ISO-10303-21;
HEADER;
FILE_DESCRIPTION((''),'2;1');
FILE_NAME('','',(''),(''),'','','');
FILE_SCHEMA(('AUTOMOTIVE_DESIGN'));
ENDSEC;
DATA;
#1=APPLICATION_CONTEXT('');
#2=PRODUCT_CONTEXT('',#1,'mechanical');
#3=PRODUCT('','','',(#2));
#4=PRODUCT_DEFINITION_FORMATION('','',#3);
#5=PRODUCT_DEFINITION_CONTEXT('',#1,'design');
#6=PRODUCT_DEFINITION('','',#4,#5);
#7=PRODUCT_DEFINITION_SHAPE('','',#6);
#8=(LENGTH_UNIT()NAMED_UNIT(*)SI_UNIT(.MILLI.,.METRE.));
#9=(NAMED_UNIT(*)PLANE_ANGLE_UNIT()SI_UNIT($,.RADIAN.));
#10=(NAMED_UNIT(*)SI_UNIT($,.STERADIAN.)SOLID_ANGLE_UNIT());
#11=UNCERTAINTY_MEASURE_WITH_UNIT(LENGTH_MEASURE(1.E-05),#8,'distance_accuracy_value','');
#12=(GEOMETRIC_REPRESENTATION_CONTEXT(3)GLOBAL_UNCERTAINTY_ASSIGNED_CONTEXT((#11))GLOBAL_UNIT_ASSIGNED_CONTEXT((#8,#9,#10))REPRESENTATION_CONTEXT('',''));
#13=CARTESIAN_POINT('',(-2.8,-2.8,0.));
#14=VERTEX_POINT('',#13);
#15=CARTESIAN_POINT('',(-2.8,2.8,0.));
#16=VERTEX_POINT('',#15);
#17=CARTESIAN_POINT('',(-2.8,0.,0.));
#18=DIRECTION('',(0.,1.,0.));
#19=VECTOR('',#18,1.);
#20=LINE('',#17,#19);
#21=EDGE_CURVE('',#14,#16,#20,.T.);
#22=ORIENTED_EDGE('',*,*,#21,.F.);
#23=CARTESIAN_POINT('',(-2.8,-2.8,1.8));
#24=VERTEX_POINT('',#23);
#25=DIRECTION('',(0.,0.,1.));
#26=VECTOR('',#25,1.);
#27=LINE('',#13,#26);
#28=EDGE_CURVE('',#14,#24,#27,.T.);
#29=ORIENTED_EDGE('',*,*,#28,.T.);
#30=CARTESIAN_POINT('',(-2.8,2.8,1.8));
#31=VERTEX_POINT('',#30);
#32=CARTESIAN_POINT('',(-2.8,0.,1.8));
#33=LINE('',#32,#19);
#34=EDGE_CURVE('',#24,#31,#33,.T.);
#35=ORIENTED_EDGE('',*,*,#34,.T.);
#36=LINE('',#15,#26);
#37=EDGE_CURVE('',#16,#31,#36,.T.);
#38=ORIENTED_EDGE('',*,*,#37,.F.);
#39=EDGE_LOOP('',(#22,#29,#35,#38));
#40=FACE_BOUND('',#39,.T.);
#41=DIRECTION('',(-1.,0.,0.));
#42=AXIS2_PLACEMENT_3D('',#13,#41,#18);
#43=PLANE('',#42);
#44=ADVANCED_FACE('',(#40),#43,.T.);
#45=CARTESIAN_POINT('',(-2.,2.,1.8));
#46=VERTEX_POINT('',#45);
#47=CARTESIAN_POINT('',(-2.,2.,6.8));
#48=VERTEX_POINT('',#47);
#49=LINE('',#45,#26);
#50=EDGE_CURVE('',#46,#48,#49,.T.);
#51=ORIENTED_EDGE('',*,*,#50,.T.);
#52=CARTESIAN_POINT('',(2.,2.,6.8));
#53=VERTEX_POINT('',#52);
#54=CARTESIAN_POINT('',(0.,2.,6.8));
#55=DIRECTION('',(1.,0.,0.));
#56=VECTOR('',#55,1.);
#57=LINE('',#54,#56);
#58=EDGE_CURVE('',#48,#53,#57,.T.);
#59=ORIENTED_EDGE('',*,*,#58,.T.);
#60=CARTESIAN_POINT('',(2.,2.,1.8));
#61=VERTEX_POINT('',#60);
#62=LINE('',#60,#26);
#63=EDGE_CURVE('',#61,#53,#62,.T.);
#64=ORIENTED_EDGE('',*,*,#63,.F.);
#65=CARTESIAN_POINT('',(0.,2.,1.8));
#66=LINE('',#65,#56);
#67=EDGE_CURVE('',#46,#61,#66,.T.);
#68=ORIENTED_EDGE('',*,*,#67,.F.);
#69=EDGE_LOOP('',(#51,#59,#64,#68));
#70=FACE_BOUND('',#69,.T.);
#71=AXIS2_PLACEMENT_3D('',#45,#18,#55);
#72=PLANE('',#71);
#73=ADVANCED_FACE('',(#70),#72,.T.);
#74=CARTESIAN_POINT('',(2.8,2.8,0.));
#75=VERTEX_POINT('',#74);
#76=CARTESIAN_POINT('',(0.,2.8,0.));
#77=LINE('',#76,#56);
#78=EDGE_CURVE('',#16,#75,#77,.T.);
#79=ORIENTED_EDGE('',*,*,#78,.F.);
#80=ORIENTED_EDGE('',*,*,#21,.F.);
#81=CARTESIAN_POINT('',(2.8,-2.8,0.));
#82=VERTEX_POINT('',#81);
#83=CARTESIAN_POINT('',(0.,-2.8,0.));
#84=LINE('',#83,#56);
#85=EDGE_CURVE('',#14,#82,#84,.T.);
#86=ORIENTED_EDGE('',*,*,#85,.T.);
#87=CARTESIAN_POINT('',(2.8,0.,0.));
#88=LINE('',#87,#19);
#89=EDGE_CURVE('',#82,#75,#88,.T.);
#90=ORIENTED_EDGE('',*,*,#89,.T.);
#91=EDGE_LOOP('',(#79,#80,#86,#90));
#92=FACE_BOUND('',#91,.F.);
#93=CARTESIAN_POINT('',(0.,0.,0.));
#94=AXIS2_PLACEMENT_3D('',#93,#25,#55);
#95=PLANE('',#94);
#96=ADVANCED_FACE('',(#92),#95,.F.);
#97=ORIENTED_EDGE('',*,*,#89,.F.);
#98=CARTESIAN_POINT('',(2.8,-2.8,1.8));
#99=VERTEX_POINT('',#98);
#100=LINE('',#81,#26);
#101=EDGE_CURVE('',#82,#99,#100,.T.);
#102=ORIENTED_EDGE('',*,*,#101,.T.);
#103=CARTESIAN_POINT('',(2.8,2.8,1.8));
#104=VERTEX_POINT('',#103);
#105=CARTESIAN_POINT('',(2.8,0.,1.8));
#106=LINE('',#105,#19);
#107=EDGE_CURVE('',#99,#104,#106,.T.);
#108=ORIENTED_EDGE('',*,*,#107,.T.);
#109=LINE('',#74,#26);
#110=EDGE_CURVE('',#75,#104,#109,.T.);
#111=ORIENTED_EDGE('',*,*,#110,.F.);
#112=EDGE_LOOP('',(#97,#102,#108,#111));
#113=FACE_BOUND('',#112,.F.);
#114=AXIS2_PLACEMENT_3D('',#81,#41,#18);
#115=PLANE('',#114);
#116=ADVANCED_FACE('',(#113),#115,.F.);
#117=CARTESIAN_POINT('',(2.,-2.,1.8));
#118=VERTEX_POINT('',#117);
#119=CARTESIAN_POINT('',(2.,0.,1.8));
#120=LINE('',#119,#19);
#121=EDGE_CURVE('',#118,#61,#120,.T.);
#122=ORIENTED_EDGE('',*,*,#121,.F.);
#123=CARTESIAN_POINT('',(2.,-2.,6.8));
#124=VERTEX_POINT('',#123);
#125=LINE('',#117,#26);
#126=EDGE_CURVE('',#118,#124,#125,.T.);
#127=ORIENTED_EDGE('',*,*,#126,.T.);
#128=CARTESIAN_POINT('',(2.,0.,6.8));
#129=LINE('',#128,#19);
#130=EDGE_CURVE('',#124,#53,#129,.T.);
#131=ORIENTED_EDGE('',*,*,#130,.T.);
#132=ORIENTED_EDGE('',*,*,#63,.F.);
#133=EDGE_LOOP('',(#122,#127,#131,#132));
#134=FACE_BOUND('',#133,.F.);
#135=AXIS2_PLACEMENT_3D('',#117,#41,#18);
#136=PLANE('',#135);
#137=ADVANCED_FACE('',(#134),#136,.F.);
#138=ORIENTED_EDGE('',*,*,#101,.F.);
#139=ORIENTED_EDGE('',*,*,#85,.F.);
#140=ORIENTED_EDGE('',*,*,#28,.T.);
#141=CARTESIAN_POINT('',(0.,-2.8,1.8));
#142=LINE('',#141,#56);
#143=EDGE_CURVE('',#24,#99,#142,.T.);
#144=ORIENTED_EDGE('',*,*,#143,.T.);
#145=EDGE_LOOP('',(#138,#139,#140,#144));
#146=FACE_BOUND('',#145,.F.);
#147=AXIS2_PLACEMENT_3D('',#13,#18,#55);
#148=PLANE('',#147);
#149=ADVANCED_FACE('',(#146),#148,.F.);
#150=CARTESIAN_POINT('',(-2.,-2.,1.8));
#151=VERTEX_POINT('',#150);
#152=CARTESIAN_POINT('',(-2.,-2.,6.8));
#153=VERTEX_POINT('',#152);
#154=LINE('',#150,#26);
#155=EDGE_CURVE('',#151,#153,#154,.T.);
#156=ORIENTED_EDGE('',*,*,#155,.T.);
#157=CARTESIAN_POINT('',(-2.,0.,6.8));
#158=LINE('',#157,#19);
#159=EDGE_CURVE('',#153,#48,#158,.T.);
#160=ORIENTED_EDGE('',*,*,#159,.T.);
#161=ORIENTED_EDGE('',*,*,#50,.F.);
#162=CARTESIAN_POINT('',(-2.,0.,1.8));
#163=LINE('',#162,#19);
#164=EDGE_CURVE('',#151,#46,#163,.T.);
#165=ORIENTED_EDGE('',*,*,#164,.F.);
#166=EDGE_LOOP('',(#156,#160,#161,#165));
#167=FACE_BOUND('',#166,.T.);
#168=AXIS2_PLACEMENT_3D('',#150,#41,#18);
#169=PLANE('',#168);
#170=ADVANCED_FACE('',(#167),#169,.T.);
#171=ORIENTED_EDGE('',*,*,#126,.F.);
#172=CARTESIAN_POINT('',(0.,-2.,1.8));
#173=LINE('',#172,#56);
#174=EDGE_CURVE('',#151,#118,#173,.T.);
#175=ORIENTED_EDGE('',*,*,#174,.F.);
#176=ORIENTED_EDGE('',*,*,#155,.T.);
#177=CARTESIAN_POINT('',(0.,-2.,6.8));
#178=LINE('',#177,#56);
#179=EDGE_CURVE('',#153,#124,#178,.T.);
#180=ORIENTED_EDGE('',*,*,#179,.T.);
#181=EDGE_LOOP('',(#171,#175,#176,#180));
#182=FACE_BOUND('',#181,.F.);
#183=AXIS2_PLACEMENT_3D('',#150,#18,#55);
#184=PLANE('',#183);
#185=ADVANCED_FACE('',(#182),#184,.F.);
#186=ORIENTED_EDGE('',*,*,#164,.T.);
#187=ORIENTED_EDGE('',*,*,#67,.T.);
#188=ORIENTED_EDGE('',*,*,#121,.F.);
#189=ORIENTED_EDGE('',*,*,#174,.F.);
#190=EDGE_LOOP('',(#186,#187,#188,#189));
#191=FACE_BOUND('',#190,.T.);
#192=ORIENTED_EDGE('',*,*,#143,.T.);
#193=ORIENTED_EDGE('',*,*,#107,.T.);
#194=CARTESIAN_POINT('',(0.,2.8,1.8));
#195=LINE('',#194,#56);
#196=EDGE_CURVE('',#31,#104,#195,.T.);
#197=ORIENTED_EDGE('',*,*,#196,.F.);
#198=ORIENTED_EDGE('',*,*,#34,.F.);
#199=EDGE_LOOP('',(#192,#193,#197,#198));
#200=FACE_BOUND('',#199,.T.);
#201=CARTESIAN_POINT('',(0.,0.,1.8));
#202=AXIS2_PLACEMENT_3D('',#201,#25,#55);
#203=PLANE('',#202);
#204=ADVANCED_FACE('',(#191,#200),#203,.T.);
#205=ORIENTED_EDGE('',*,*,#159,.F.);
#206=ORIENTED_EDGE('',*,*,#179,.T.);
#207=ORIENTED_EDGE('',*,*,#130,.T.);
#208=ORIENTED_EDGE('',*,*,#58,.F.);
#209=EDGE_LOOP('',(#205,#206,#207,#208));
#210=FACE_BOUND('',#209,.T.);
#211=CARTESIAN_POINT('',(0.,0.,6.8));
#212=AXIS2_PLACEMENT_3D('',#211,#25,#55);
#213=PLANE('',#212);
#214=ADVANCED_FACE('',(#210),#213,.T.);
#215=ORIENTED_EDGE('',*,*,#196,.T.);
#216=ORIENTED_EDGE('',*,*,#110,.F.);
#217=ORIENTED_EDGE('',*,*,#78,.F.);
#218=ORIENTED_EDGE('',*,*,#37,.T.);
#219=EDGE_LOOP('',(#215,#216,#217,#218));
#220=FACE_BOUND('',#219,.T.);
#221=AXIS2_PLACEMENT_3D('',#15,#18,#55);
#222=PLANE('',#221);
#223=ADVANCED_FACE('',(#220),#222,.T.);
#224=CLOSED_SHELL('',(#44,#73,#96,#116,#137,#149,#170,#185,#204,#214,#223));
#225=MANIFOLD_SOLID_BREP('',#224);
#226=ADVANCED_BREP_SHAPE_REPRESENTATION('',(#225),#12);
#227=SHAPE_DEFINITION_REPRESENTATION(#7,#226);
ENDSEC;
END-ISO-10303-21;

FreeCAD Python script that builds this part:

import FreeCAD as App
import Part
import Sketcher

doc = App.newDocument("Part")
body = doc.addObject("PartDesign::Body", "Body")

# Sketch on XY plane
sketch1 = doc.addObject("Sketcher::SketchObject", "Sketch")
body.addObject(sketch1)
sketch1.AttachmentSupport = (doc.XY_Plane, [""])
sketch1.MapMode = "FlatFace"
sketch1.addGeometry(Part.LineSegment(App.Vector(-2.8, 2.8, 0), App.Vector(-2.8, -2.8, 0)), False)
sketch1.addGeometry(Part.LineSegment(App.Vector(-2.8, -2.8, 0), App.Vector(2.8, -2.8, 0)), False)
sketch1.addGeometry(Part.LineSegment(App.Vector(2.8, -2.8, 0), App.Vector(2.8, 2.8, 0)), False)
sketch1.addGeometry(Part.LineSegment(App.Vector(2.8, 2.8, 0), App.Vector(-2.8, 2.8, 0)), False)
sketch1.addConstraint(Sketcher.Constraint("Coincident", 0, 2, 1, 1))
sketch1.addConstraint(Sketcher.Constraint("Coincident", 1, 2, 2, 1))
sketch1.addConstraint(Sketcher.Constraint("Coincident", 2, 2, 3, 1))
sketch1.addConstraint(Sketcher.Constraint("Coincident", 3, 2, 0, 1))
sketch1.addConstraint(Sketcher.Constraint("Vertical", 0))
sketch1.addConstraint(Sketcher.Constraint("Horizontal", 1))
sketch1.addConstraint(Sketcher.Constraint("Vertical", 2))
sketch1.addConstraint(Sketcher.Constraint("Horizontal", 3))
sketch1.addConstraint(Sketcher.Constraint("Symmetric", 0, 2, 2, 2, -1, 1))
sketch1.addConstraint(Sketcher.Constraint("Equal", 3, 0))
sketch1.addConstraint(Sketcher.Constraint("DistanceX", 1, 1, 1, 2, 5.6))
pad1 = doc.addObject("PartDesign::Pad", "Pad")
body.addObject(pad1)
pad1.Profile = sketch1
pad1.Length = 1.8

# Sketch on XY plane
sketch2 = doc.addObject("Sketcher::SketchObject", "Sketch001")
body.addObject(sketch2)
sketch2.AttachmentSupport = (doc.XY_Plane, [""])
sketch2.MapMode = "FlatFace"
sketch2.AttachmentOffset = App.Placement(App.Vector(0, 0, 1.8), App.Rotation())
sketch2.addGeometry(Part.LineSegment(App.Vector(-2, 2, 0), App.Vector(-2, -2, 0)), False)
sketch2.addGeometry(Part.LineSegment(App.Vector(-2, -2, 0), App.Vector(2, -2, 0)), False)
sketch2.addGeometry(Part.LineSegment(App.Vector(2, -2, 0), App.Vector(2, 2, 0)), False)
sketch2.addGeometry(Part.LineSegment(App.Vector(2, 2, 0), App.Vector(-2, 2, 0)), False)
sketch2.addConstraint(Sketcher.Constraint("Coincident", 0, 2, 1, 1))
sketch2.addConstraint(Sketcher.Constraint("Coincident", 1, 2, 2, 1))
sketch2.addConstraint(Sketcher.Constraint("Coincident", 2, 2, 3, 1))
sketch2.addConstraint(Sketcher.Constraint("Coincident", 3, 2, 0, 1))
sketch2.addConstraint(Sketcher.Constraint("Vertical", 0))
sketch2.addConstraint(Sketcher.Constraint("Horizontal", 1))
sketch2.addConstraint(Sketcher.Constraint("Vertical", 2))
sketch2.addConstraint(Sketcher.Constraint("Horizontal", 3))
sketch2.addConstraint(Sketcher.Constraint("Symmetric", 0, 2, 2, 2, -1, 1))
sketch2.addConstraint(Sketcher.Constraint("Equal", 3, 0))
sketch2.addConstraint(Sketcher.Constraint("DistanceX", 1, 1, 1, 2, 4.0))
pad2 = doc.addObject("PartDesign::Pad", "Pad001")
body.addObject(pad2)
pad2.Profile = sketch2
pad2.Length = 5

doc.recompute()
